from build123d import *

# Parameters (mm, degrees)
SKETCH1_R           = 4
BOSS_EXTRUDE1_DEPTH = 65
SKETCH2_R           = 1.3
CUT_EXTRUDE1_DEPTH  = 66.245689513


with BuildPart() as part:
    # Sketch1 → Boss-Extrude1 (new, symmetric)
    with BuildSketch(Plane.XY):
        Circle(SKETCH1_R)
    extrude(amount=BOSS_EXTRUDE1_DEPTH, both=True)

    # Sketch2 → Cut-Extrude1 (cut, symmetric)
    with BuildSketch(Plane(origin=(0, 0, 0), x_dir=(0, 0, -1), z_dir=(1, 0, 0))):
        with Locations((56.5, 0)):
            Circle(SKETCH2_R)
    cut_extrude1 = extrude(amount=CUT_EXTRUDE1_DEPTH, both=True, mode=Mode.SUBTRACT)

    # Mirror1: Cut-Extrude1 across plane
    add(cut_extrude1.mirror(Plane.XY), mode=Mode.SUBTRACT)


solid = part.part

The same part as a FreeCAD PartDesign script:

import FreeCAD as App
import Part
import Sketcher
Q = App.Units.Quantity

doc = App.newDocument("Part")
params = doc.addObject("Spreadsheet::Sheet", "Params")
for row, (alias, value) in enumerate([
    ("sketch1_diameter", "8 mm"),
    ("pad1_length", "130 mm"),
    ("sketch2_diameter", "2.6 mm"),
    ("pocket1_length", "132.491379 mm"),
], start=1):
    params.set(f"A{row}", alias)
    params.set(f"B{row}", "=" + value)
    params.setAlias(f"B{row}", alias)

body = doc.addObject("PartDesign::Body", "Body")

# Sketch on XY plane
sketch1 = body.newObject("Sketcher::SketchObject", "Sketch")
sketch1.AttachmentSupport = (doc.getObject("XY_Plane"), [""])
sketch1.MapMode = "FlatFace"
sketch1.addGeometry(Part.Circle(App.Vector(0, 0, 0), App.Vector(0, 0, 1), 4), False)
sketch1.addConstraint(Sketcher.Constraint("Coincident", 0, 3, -1, 1))
sketch1.addConstraint(Sketcher.Constraint("Diameter", 0, Q("8 mm")))
sketch1.setExpression("Constraints[1]", "Params.sketch1_diameter")
pad1 = body.newObject("PartDesign::Pad", "Pad")
pad1.Profile = sketch1
pad1.setExpression("Length", "Params.pad1_length")
pad1.Midplane = True

# Sketch on YZ plane
sketch2 = body.newObject("Sketcher::SketchObject", "Sketch001")
sketch2.AttachmentSupport = (doc.getObject("YZ_Plane"), [""])
sketch2.MapMode = "FlatFace"
sketch2.addGeometry(Part.Circle(App.Vector(0, -56.5, 0), App.Vector(0, 0, 1), 1.3), False)
sketch2.addConstraint(Sketcher.Constraint("PointOnObject", 0, 3, -2))
sketch2.addConstraint(Sketcher.Constraint("Diameter", 0, Q("2.6 mm")))
sketch2.addConstraint(Sketcher.Constraint("DistanceY", 0, 3, -1, 1, Q("56.5 mm")))
sketch2.setExpression("Constraints[1]", "Params.sketch2_diameter")
pocket1 = body.newObject("PartDesign::Pocket", "Pocket")
pocket1.Profile = sketch2
pocket1.setExpression("Length", "Params.pocket1_length")
pocket1.Midplane = True
doc.recompute()

mirrored = body.newObject("PartDesign::Mirrored", "Mirrored")
mirrored.Originals = [pocket1]
mirrored.MirrorPlane = (doc.getObject("XY_Plane"), [""])
body.Tip = mirrored

doc.recompute()
